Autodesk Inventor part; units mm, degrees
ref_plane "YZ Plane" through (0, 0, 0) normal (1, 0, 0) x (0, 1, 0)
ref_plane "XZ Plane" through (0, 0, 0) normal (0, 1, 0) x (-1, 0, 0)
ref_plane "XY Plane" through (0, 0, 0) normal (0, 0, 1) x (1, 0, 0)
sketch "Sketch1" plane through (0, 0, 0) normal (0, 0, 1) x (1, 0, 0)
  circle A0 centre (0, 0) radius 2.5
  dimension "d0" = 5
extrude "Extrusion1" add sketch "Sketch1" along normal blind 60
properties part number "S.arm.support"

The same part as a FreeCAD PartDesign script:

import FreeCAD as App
import Part
import Sketcher
from FreeCAD import Vector

doc = App.newDocument("Part")
body = doc.addObject("PartDesign::Body", "Body")

# Sketch on XY plane
sketch1 = body.newObject("Sketcher::SketchObject", "Sketch")
sketch1.AttachmentSupport = (doc.getObject("XY_Plane"), [""])
sketch1.MapMode = "FlatFace"
sketch1.addGeometry(Part.Circle(Vector(0, 0, 0), Vector(0, 0, 1), 2.5), False)
sketch1.addConstraint([
    Sketcher.Constraint("Coincident", 0, 3, -1, 1),
    Sketcher.Constraint("Diameter", 0, 5.0),
])
pad1 = body.newObject("PartDesign::Pad", "Pad")
pad1.Profile = sketch1
pad1.Length = 60

doc.recompute()
